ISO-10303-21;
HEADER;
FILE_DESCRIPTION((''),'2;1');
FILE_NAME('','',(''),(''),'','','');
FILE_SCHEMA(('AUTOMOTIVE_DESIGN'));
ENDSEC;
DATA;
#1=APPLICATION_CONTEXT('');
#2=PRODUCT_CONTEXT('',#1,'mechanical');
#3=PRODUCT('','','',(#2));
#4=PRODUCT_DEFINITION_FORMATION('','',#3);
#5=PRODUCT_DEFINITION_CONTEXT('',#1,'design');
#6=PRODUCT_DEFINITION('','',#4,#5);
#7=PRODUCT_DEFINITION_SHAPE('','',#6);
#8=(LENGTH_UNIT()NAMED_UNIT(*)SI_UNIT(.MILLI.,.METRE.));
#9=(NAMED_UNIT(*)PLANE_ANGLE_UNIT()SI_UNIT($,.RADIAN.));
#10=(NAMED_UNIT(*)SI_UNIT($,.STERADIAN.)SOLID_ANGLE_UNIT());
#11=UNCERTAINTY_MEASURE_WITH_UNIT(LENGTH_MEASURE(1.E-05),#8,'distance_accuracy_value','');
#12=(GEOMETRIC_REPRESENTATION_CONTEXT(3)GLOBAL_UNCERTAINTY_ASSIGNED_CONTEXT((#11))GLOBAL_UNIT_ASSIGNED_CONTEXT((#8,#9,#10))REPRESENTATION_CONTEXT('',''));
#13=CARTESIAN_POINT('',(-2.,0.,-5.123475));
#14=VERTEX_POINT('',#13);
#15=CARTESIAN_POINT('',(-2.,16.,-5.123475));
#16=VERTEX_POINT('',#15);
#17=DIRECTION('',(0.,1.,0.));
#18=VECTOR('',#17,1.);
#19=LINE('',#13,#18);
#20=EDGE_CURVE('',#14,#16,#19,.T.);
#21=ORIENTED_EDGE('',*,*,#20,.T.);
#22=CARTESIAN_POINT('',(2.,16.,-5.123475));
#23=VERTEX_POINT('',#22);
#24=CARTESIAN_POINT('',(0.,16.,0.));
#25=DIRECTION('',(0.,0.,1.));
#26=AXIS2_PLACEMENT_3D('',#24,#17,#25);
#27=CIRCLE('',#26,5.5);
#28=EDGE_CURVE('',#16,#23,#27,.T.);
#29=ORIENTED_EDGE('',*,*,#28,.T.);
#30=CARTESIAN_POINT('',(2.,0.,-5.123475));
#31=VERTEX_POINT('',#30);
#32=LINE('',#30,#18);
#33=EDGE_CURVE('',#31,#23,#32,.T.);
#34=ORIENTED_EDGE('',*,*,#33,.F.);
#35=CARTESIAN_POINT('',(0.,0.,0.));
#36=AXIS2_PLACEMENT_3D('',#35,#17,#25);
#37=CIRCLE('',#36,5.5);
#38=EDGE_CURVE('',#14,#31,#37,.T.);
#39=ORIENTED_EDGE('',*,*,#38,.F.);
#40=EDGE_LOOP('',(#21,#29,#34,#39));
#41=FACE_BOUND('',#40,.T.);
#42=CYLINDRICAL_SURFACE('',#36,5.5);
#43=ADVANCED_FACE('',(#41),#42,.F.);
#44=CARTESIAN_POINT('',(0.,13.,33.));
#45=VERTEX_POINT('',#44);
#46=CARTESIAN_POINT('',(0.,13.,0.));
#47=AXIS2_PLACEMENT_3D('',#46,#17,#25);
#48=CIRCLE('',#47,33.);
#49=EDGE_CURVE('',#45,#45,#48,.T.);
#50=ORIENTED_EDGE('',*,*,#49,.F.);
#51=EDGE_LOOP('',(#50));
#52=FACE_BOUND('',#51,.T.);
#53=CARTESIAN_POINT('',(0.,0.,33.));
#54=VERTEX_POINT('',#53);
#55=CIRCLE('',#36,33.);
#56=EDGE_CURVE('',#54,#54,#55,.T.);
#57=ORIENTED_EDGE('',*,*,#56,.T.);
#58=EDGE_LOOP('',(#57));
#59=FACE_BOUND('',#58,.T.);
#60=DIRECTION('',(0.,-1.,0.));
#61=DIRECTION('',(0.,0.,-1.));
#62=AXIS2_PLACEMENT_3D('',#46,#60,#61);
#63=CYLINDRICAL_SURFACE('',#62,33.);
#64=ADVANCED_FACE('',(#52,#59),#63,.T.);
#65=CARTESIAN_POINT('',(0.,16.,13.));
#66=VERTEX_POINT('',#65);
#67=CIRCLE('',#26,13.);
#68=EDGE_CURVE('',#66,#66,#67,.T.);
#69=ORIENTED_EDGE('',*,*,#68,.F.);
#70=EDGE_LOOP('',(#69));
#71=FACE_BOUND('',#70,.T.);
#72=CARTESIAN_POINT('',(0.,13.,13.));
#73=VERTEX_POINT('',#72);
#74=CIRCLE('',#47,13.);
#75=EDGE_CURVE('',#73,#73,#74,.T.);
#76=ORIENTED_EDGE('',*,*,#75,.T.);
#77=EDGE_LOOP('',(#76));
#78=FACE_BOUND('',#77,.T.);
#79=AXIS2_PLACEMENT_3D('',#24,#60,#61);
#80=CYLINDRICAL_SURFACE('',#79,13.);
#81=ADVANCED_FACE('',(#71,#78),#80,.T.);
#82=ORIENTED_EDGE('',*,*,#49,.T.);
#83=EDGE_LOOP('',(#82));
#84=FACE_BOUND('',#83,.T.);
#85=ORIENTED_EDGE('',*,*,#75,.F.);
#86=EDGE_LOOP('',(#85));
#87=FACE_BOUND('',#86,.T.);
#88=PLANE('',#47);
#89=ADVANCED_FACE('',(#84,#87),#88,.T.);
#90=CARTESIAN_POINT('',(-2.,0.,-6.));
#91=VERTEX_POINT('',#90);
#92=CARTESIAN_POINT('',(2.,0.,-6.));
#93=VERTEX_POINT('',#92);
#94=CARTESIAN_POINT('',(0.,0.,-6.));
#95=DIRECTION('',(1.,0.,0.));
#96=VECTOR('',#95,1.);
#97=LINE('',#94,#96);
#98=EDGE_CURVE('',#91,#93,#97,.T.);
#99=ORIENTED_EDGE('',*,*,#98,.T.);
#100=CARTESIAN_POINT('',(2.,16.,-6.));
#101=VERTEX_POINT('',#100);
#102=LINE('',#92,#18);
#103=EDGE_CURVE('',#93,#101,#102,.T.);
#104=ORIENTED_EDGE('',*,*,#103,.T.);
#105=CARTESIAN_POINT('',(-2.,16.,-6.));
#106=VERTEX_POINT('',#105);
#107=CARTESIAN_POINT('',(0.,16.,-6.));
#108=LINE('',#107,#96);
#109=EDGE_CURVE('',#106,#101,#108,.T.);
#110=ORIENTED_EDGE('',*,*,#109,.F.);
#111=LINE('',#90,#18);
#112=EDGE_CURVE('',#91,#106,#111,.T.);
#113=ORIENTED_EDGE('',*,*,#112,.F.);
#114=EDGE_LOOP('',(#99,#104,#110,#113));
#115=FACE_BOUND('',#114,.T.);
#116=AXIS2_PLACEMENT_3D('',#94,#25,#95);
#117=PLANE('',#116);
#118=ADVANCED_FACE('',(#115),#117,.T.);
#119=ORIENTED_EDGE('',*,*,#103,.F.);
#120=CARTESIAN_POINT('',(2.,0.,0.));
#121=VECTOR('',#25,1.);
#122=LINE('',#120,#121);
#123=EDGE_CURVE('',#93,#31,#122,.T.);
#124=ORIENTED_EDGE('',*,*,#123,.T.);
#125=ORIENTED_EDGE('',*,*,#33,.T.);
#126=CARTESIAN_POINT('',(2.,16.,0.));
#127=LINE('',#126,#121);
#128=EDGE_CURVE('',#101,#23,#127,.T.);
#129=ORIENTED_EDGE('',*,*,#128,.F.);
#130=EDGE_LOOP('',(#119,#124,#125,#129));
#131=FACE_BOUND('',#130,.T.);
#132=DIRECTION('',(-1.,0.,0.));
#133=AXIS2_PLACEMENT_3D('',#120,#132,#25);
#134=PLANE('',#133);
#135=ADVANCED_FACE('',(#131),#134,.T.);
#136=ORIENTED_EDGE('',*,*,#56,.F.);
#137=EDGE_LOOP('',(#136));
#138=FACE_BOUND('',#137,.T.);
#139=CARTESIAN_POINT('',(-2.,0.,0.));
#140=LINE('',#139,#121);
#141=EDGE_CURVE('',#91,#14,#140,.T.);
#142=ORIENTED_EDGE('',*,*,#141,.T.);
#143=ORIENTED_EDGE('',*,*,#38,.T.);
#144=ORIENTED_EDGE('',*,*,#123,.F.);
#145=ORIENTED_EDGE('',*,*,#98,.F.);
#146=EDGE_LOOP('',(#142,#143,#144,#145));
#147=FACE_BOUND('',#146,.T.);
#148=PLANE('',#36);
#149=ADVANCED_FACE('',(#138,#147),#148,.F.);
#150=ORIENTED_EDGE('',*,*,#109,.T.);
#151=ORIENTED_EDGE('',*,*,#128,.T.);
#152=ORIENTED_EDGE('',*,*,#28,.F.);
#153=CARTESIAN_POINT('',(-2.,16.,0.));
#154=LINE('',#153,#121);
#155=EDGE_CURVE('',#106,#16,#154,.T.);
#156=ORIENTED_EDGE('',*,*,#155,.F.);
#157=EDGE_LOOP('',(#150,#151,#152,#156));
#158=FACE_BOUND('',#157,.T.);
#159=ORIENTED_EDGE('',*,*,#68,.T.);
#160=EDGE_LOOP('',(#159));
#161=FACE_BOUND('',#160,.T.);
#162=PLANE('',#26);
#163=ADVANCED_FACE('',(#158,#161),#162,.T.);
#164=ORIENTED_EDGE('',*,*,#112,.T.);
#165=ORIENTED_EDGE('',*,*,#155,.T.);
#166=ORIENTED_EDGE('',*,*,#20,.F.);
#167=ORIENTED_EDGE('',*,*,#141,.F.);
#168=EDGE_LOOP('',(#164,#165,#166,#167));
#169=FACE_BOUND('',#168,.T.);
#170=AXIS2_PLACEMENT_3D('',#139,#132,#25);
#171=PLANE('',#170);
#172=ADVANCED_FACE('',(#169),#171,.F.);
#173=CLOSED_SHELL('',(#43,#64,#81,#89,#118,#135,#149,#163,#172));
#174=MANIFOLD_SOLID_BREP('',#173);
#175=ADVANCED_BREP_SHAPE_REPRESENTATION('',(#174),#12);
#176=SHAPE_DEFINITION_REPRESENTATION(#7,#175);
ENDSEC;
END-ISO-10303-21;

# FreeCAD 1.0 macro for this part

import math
import FreeCAD as App
import Part
import Sketcher
Q = App.Units.Quantity

doc = App.newDocument("Part")
body = doc.addObject("PartDesign::Body", "Body")

# Sketch on XZ plane
sketch1 = body.newObject("Sketcher::SketchObject", "Sketch")
sketch1.AttachmentSupport = (doc.getObject("XZ_Plane"), [""])
sketch1.MapMode = "FlatFace"
sketch1.addGeometry(Part.Circle(App.Vector(0, 0, 0), App.Vector(0, 0, 1), 33), False)
sketch1.addConstraint([
    Sketcher.Constraint("Coincident", 0, 3, -1, 1),
    Sketcher.Constraint("Diameter", 0, Q("66 mm")),
])
pad1 = body.newObject("PartDesign::Pad", "Pad")
pad1.Profile = sketch1
pad1.Length = 13
pad1.Reversed = True

# Sketch on XZ plane
sketch2 = body.newObject("Sketcher::SketchObject", "Sketch001")
sketch2.AttachmentSupport = (doc.getObject("XZ_Plane"), [""])
sketch2.MapMode = "FlatFace"
sketch2.AttachmentOffset = App.Placement(App.Vector(0, 0, -13), App.Rotation())
sketch2.addGeometry(Part.Circle(App.Vector(0, 0, 0), App.Vector(0, 0, 1), 13), False)
sketch2.addConstraint([
    Sketcher.Constraint("Coincident", 0, 3, -1, 1),
    Sketcher.Constraint("Diameter", 0, Q("26 mm")),
])
pad2 = body.newObject("PartDesign::Pad", "Pad001")
pad2.Profile = sketch2
pad2.Length = 3
pad2.Reversed = True

# Sketch on XZ plane
sketch3 = body.newObject("Sketcher::SketchObject", "Sketch002")
sketch3.AttachmentSupport = (doc.getObject("XZ_Plane"), [""])
sketch3.MapMode = "FlatFace"
sketch3.AttachmentOffset = App.Placement(App.Vector(0, 0, -16), App.Rotation())
sketch3.addGeometry([
    Part.ArcOfCircle(Part.Circle(App.Vector(0, 0, 0), App.Vector(0, 0, 1), 5.5), math.radians(0), math.radians(249)),  # 0
    Part.ArcOfCircle(Part.Circle(App.Vector(0, 0, 0), App.Vector(0, 0, 1), 5.5), math.radians(-69), math.radians(0)),  # 1
    Part.LineSegment(App.Vector(2, -5.1, 0), App.Vector(2, -6, 0)),  # 2
    Part.LineSegment(App.Vector(2, -6, 0), App.Vector(-2, -6, 0)),  # 3
    Part.LineSegment(App.Vector(-2, -6, 0), App.Vector(-2, -5.1, 0)),  # 4
], False)
sketch3.addConstraint([
    Sketcher.Constraint("Tangent", 0, 1, 1, 2),
    Sketcher.Constraint("Coincident", 1, 1, 2, 1),
    Sketcher.Constraint("Coincident", 2, 2, 3, 1),
    Sketcher.Constraint("Coincident", 3, 2, 4, 1),
    Sketcher.Constraint("Coincident", 4, 2, 0, 2),
    Sketcher.Constraint("Vertical", 2),
    Sketcher.Constraint("Horizontal", 3),
    Sketcher.Constraint("Vertical", 4),
    Sketcher.Constraint("Coincident", 0, 3, -1, 1),
    Sketcher.Constraint("Equal", 0, 1),
    Sketcher.Constraint("PointOnObject", 0, 1, -1),
    Sketcher.Constraint("Horizontal", 1, 1, 4, 2),
    Sketcher.Constraint("Radius", 0, Q("5.5 mm")),
    Sketcher.Constraint("DistanceX", 3, 2, 3, 1, Q("4 mm")),
    Sketcher.Constraint("DistanceY", 2, 2, -1, 1, Q("6 mm")),
])
pocket1 = body.newObject("PartDesign::Pocket", "Pocket")
pocket1.Profile = sketch3
pocket1.Type = "ThroughAll"
pocket1.Midplane = True

doc.recompute()
